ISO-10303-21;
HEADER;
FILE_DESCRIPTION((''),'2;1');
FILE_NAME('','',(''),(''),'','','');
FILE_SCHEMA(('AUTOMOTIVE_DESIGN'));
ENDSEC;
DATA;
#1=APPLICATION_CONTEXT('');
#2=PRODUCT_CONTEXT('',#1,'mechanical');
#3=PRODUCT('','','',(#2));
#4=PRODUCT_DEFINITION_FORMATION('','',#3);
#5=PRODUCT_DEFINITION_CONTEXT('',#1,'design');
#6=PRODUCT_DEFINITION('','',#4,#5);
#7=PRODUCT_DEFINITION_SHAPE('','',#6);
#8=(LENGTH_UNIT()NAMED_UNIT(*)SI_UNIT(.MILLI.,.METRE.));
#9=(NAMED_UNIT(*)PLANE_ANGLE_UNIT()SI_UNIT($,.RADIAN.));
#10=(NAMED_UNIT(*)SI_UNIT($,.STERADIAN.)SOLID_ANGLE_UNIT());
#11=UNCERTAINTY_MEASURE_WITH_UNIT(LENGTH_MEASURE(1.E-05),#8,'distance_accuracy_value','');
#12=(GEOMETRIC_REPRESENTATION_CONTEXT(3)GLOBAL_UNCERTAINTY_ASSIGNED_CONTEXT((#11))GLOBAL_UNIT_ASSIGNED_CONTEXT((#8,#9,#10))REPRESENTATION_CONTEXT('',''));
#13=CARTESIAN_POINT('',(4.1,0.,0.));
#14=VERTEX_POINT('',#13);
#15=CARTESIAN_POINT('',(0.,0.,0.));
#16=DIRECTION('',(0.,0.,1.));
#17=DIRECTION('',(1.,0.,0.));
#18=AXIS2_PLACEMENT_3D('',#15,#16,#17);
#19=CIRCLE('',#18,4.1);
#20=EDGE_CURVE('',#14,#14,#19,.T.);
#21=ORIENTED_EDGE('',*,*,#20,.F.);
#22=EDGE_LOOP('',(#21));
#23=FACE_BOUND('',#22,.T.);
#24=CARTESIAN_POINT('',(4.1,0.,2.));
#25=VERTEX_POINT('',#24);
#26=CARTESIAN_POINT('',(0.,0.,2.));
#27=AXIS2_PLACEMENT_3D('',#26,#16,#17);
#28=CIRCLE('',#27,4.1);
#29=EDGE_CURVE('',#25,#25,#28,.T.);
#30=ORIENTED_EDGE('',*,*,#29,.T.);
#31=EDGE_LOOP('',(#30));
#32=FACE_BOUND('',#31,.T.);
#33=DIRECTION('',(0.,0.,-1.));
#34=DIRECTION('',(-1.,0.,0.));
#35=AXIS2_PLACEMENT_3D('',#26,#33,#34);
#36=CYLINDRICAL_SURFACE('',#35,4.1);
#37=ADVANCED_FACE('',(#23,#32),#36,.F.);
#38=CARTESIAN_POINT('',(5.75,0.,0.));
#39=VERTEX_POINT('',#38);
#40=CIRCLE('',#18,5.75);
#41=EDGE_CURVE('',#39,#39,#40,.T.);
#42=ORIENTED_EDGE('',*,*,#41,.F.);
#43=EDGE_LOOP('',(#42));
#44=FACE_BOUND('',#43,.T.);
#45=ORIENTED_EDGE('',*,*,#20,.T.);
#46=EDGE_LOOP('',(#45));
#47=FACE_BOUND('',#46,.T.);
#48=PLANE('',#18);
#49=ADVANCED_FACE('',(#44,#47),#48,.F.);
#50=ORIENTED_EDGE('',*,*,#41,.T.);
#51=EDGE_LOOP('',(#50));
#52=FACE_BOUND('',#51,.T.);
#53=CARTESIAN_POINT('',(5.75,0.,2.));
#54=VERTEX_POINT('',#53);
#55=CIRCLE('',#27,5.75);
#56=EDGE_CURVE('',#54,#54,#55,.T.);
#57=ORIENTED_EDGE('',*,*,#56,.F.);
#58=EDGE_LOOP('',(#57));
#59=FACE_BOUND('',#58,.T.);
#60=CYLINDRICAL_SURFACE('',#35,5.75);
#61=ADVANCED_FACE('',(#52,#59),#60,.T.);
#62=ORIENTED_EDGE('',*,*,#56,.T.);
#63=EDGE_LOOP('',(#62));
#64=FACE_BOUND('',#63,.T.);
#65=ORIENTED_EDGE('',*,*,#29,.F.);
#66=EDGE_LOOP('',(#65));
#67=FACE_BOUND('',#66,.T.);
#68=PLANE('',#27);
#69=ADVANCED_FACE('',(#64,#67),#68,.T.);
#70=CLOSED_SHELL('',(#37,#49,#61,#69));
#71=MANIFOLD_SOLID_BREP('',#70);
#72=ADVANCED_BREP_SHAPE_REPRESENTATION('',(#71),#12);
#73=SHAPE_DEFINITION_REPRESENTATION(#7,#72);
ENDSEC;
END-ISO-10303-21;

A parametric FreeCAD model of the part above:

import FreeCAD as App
import Part
import Sketcher

V = App.Vector

doc = App.newDocument("Part")
body = doc.addObject("PartDesign::Body", "Body")

# Sketch on XY plane
sketch1 = doc.addObject("Sketcher::SketchObject", "Sketch")
body.addObject(sketch1)
sketch1.AttachmentSupport = (doc.XY_Plane, [""])
sketch1.MapMode = "FlatFace"
sketch1.addGeometry([
    Part.Circle(V(0, 0, 0), V(0, 0, 1), 5.8),
    Part.Circle(V(0, 0, 0), V(0, 0, 1), 4.1),
], False)
sketch1.addConstraint([
    Sketcher.Constraint("Coincident", 0, 3, -1, 1),
    Sketcher.Constraint("Coincident", 1, 3, -1, 1),
    Sketcher.Constraint("Diameter", 0, 11.5),
    Sketcher.Constraint("Diameter", 1, 8.2),
])
pad1 = doc.addObject("PartDesign::Pad", "Pad")
body.addObject(pad1)
pad1.Profile = sketch1
pad1.Length = 2

doc.recompute()
